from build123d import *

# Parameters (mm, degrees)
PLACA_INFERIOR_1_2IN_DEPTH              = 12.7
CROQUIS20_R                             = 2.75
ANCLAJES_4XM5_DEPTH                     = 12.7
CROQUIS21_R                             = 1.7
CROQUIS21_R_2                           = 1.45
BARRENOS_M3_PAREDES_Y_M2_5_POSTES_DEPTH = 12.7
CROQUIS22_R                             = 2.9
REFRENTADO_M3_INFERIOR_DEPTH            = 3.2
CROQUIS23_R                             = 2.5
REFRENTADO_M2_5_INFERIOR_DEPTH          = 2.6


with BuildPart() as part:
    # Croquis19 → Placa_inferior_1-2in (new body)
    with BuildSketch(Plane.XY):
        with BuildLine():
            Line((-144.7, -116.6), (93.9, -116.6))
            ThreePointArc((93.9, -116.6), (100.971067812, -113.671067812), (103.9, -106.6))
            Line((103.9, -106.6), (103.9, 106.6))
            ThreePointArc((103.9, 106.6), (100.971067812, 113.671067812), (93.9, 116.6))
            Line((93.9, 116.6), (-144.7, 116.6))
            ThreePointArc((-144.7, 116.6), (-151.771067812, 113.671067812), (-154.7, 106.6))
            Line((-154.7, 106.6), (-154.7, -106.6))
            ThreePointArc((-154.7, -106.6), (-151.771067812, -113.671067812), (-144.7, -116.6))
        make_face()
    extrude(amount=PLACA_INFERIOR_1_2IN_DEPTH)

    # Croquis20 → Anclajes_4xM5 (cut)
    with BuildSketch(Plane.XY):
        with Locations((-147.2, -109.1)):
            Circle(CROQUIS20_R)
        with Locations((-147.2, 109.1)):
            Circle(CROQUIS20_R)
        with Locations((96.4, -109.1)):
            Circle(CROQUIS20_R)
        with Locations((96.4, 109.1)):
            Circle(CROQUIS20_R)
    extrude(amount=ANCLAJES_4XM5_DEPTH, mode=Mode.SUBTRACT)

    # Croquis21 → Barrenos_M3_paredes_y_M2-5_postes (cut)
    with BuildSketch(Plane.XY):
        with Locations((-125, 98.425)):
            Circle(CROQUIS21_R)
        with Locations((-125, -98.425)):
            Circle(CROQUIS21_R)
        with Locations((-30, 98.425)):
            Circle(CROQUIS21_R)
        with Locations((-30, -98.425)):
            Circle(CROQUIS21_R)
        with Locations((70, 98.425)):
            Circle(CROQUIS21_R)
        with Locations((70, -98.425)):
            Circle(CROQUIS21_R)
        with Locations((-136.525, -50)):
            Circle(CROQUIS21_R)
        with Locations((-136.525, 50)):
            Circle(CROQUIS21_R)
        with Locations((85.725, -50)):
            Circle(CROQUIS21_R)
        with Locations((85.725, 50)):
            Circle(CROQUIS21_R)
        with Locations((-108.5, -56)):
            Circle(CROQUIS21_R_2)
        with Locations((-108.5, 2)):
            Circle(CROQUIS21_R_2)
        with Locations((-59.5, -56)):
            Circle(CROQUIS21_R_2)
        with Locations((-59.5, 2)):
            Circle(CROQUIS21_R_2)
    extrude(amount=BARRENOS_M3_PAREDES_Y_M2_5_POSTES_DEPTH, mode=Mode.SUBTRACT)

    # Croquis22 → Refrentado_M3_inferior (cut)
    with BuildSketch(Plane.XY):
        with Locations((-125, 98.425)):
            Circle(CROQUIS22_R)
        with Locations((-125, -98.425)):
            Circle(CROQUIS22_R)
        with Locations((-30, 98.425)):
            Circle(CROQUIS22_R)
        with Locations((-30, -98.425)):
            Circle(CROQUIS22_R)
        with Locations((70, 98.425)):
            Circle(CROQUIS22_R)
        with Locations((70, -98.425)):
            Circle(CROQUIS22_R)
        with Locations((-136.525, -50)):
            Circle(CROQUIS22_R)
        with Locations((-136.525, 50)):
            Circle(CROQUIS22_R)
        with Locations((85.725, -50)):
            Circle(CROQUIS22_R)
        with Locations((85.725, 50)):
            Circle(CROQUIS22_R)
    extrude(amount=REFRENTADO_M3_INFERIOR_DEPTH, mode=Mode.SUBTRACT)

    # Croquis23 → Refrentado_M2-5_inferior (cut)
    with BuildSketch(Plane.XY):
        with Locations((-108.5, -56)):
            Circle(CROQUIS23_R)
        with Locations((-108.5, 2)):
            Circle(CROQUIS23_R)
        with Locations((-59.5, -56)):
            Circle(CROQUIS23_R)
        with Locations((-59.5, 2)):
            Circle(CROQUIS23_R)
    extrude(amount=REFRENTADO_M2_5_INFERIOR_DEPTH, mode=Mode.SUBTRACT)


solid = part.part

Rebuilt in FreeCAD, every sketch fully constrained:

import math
import FreeCAD as App
import Part
import Sketcher
from FreeCAD import Vector
Q = App.Units.Quantity

doc = App.newDocument("Part")
body = doc.addObject("PartDesign::Body", "Body")

sketch1 = body.newObject("Sketcher::SketchObject", "Sketch")
sketch1.AttachmentSupport = (doc.getObject("XY_Plane"), [""])
sketch1.MapMode = "FlatFace"
sketch1.addGeometry([
    Part.LineSegment(Vector(-145, -117, 0), Vector(94, -117, 0)),
    Part.ArcOfCircle(Part.Circle(Vector(94, -107, 0), Vector(0, 0, 1), 10), math.radians(-90), math.radians(0)),
    Part.LineSegment(Vector(104, -107, 0), Vector(104, 107, 0)),
    Part.ArcOfCircle(Part.Circle(Vector(94, 107, 0), Vector(0, 0, 1), 10), math.radians(0), math.radians(90)),
    Part.LineSegment(Vector(94, 117, 0), Vector(-145, 117, 0)),
    Part.ArcOfCircle(Part.Circle(Vector(-145, 107, 0), Vector(0, 0, 1), 10), math.radians(90), math.radians(180)),
    Part.LineSegment(Vector(-155, 107, 0), Vector(-155, -107, 0)),
    Part.ArcOfCircle(Part.Circle(Vector(-145, -107, 0), Vector(0, 0, 1), 10), math.radians(180), math.radians(270)),
], False)
sketch1.addConstraint([
    Sketcher.Constraint("Tangent", 0, 2, 1, 1),
    Sketcher.Constraint("Tangent", 1, 2, 2, 1),
    Sketcher.Constraint("Tangent", 2, 2, 3, 1),
    Sketcher.Constraint("Tangent", 3, 2, 4, 1),
    Sketcher.Constraint("Tangent", 4, 2, 5, 1),
    Sketcher.Constraint("Tangent", 5, 2, 6, 1),
    Sketcher.Constraint("Tangent", 6, 2, 7, 1),
    Sketcher.Constraint("Tangent", 7, 2, 0, 1),
    Sketcher.Constraint("Horizontal", 0),
    Sketcher.Constraint("Vertical", 2),
    Sketcher.Constraint("Horizontal", 4),
    Sketcher.Constraint("Vertical", 6),
    Sketcher.Constraint("Equal", 1, 3),
    Sketcher.Constraint("Equal", 3, 5),
    Sketcher.Constraint("Equal", 5, 7),
    Sketcher.Constraint("Radius", 1, Q("10 mm")),
    Sketcher.Constraint("DistanceX", 0, 1, 0, 2, Q("238.6 mm")),
    Sketcher.Constraint("DistanceY", 2, 1, 2, 2, Q("213.2 mm")),
    Sketcher.Constraint("DistanceX", -1, 1, 1, 3, Q("93.9 mm")),
    Sketcher.Constraint("DistanceY", 1, 3, -1, 1, Q("106.6 mm")),
])
pad1 = body.newObject("PartDesign::Pad", "Pad")
pad1.Profile = sketch1
pad1.Length = 12.7

sketch2 = body.newObject("Sketcher::SketchObject", "Sketch001")
sketch2.AttachmentSupport = (doc.getObject("XY_Plane"), [""])
sketch2.MapMode = "FlatFace"
sketch2.addGeometry([
    Part.Circle(Vector(-147.2, -109.1, 0), Vector(0, 0, 1), 2.8),
    Part.Circle(Vector(-147.2, 109.1, 0), Vector(0, 0, 1), 2.8),
    Part.Circle(Vector(96.4, -109.1, 0), Vector(0, 0, 1), 2.8),
    Part.Circle(Vector(96.4, 109.1, 0), Vector(0, 0, 1), 2.8),
], False)
sketch2.addConstraint([
    Sketcher.Constraint("Equal", 0, 1),
    Sketcher.Constraint("Equal", 1, 2),
    Sketcher.Constraint("Equal", 2, 3),
    Sketcher.Constraint("Symmetric", 0, 3, 1, 3, -1),
    Sketcher.Constraint("Symmetric", 2, 3, 3, 3, -1),
    Sketcher.Constraint("Horizontal", 0, 3, 2, 3),
    Sketcher.Constraint("Diameter", 0, Q("5.5 mm")),
    Sketcher.Constraint("DistanceX", 0, 3, -1, 1, Q("147.2 mm")),
    Sketcher.Constraint("DistanceY", 0, 3, -1, 1, Q("109.1 mm")),
    Sketcher.Constraint("DistanceX", -1, 1, 2, 3, Q("96.4 mm")),
])
pocket1 = body.newObject("PartDesign::Pocket", "Pocket")
pocket1.Profile = sketch2
pocket1.Length = 12.7
pocket1.Reversed = True

sketch3 = body.newObject("Sketcher::SketchObject", "Sketch002")
sketch3.AttachmentSupport = (doc.getObject("XY_Plane"), [""])
sketch3.MapMode = "FlatFace"
sketch3.addGeometry([
    Part.Circle(Vector(-125, 98.4, 0), Vector(0, 0, 1), 1.7),
    Part.Circle(Vector(-125, -98.4, 0), Vector(0, 0, 1), 1.7),
    Part.Circle(Vector(-30, 98.4, 0), Vector(0, 0, 1), 1.7),
    Part.Circle(Vector(-30, -98.4, 0), Vector(0, 0, 1), 1.7),
    Part.Circle(Vector(70, 98.4, 0), Vector(0, 0, 1), 1.7),
    Part.Circle(Vector(70, -98.4, 0), Vector(0, 0, 1), 1.7),
    Part.Circle(Vector(-136.5, -50, 0), Vector(0, 0, 1), 1.7),
    Part.Circle(Vector(-136.5, 50, 0), Vector(0, 0, 1), 1.7),
    Part.Circle(Vector(85.7, -50, 0), Vector(0, 0, 1), 1.7),
    Part.Circle(Vector(85.7, 50, 0), Vector(0, 0, 1), 1.7),
    Part.Circle(Vector(-108.5, -56, 0), Vector(0, 0, 1), 1.4),
    Part.Circle(Vector(-108.5, 2, 0), Vector(0, 0, 1), 1.4),
    Part.Circle(Vector(-59.5, -56, 0), Vector(0, 0, 1), 1.4),
    Part.Circle(Vector(-59.5, 2, 0), Vector(0, 0, 1), 1.4),
], False)
sketch3.addConstraint([
    Sketcher.Constraint("Equal", 0, 1),
    Sketcher.Constraint("Equal", 1, 2),
    Sketcher.Constraint("Equal", 2, 3),
    Sketcher.Constraint("Equal", 3, 4),
    Sketcher.Constraint("Equal", 4, 5),
    Sketcher.Constraint("Equal", 5, 6),
    Sketcher.Constraint("Equal", 6, 7),
    Sketcher.Constraint("Equal", 7, 8),
    Sketcher.Constraint("Equal", 8, 9),
    Sketcher.Constraint("Equal", 10, 11),
    Sketcher.Constraint("Equal", 11, 12),
    Sketcher.Constraint("Equal", 12, 13),
    Sketcher.Constraint("Symmetric", 0, 3, 1, 3, -1),
    Sketcher.Constraint("Symmetric", 2, 3, 3, 3, -1),
    Sketcher.Constraint("Symmetric", 4, 3, 5, 3, -1),
    Sketcher.Constraint("Symmetric", 6, 3, 7, 3, -1),
    Sketcher.Constraint("Symmetric", 8, 3, 9, 3, -1),
    Sketcher.Constraint("Horizontal", 0, 3, 2, 3),
    Sketcher.Constraint("Horizontal", 2, 3, 4, 3),
    Sketcher.Constraint("Horizontal", 6, 3, 8, 3),
    Sketcher.Constraint("Horizontal", 10, 3, 12, 3),
    Sketcher.Constraint("Horizontal", 11, 3, 13, 3),
    Sketcher.Constraint("Vertical", 10, 3, 11, 3),
    Sketcher.Constraint("Vertical", 12, 3, 13, 3),
    Sketcher.Constraint("Diameter", 0, Q("3.4 mm")),
    Sketcher.Constraint("Diameter", 10, Q("2.9 mm")),
    Sketcher.Constraint("DistanceX", 0, 3, -1, 1, Q("125 mm")),
    Sketcher.Constraint("DistanceX", 2, 3, -1, 1, Q("30 mm")),
    Sketcher.Constraint("DistanceX", -1, 1, 4, 3, Q("70 mm")),
    Sketcher.Constraint("DistanceY", 6, 3, -1, 1, Q("50 mm")),
    Sketcher.Constraint("DistanceY", 10, 3, -1, 1, Q("56 mm")),
    Sketcher.Constraint("DistanceY", -1, 1, 11, 3, Q("2 mm")),
    Sketcher.Constraint("DistanceX", 10, 3, 12, 3, Q("49 mm")),
    Sketcher.Constraint("DistanceX", 10, 3, -1, 1, Q("108.5 mm")),
    Sketcher.Constraint("DistanceY", 1, 3, 0, 3, Q("196.85 mm")),
    Sketcher.Constraint("DistanceX", 6, 3, -1, 1, Q("136.525 mm")),
    Sketcher.Constraint("DistanceX", -1, 1, 8, 3, Q("85.725 mm")),
])
pocket2 = body.newObject("PartDesign::Pocket", "Pocket001")
pocket2.Profile = sketch3
pocket2.Length = 12.7
pocket2.Reversed = True

sketch4 = body.newObject("Sketcher::SketchObject", "Sketch003")
sketch4.AttachmentSupport = (doc.getObject("XY_Plane"), [""])
sketch4.MapMode = "FlatFace"
sketch4.addGeometry([
    Part.Circle(Vector(-125, 98.4, 0), Vector(0, 0, 1), 2.9),
    Part.Circle(Vector(-125, -98.4, 0), Vector(0, 0, 1), 2.9),
    Part.Circle(Vector(-30, 98.4, 0), Vector(0, 0, 1), 2.9),
    Part.Circle(Vector(-30, -98.4, 0), Vector(0, 0, 1), 2.9),
    Part.Circle(Vector(70, 98.4, 0), Vector(0, 0, 1), 2.9),
    Part.Circle(Vector(70, -98.4, 0), Vector(0, 0, 1), 2.9),
    Part.Circle(Vector(-136.5, -50, 0), Vector(0, 0, 1), 2.9),
    Part.Circle(Vector(-136.5, 50, 0), Vector(0, 0, 1), 2.9),
    Part.Circle(Vector(85.7, -50, 0), Vector(0, 0, 1), 2.9),
    Part.Circle(Vector(85.7, 50, 0), Vector(0, 0, 1), 2.9),
], False)
sketch4.addConstraint([
    Sketcher.Constraint("Equal", 0, 1),
    Sketcher.Constraint("Equal", 1, 2),
    Sketcher.Constraint("Equal", 2, 3),
    Sketcher.Constraint("Equal", 3, 4),
    Sketcher.Constraint("Equal", 4, 5),
    Sketcher.Constraint("Equal", 5, 6),
    Sketcher.Constraint("Equal", 6, 7),
    Sketcher.Constraint("Equal", 7, 8),
    Sketcher.Constraint("Equal", 8, 9),
    Sketcher.Constraint("Symmetric", 0, 3, 1, 3, -1),
    Sketcher.Constraint("Symmetric", 2, 3, 3, 3, -1),
    Sketcher.Constraint("Symmetric", 4, 3, 5, 3, -1),
    Sketcher.Constraint("Symmetric", 6, 3, 7, 3, -1),
    Sketcher.Constraint("Symmetric", 8, 3, 9, 3, -1),
    Sketcher.Constraint("Horizontal", 0, 3, 2, 3),
    Sketcher.Constraint("Horizontal", 2, 3, 4, 3),
    Sketcher.Constraint("Horizontal", 6, 3, 8, 3),
    Sketcher.Constraint("Diameter", 0, Q("5.8 mm")),
    Sketcher.Constraint("DistanceX", 0, 3, -1, 1, Q("125 mm")),
    Sketcher.Constraint("DistanceX", 2, 3, -1, 1, Q("30 mm")),
    Sketcher.Constraint("DistanceX", -1, 1, 4, 3, Q("70 mm")),
    Sketcher.Constraint("DistanceY", 6, 3, -1, 1, Q("50 mm")),
    Sketcher.Constraint("DistanceY", 1, 3, 0, 3, Q("196.85 mm")),
    Sketcher.Constraint("DistanceX", 6, 3, -1, 1, Q("136.525 mm")),
    Sketcher.Constraint("DistanceX", -1, 1, 8, 3, Q("85.725 mm")),
])
pocket3 = body.newObject("PartDesign::Pocket", "Pocket002")
pocket3.Profile = sketch4
pocket3.Length = 3.2
pocket3.Reversed = True

sketch5 = body.newObject("Sketcher::SketchObject", "Sketch004")
sketch5.AttachmentSupport = (doc.getObject("XY_Plane"), [""])
sketch5.MapMode = "FlatFace"
sketch5.addGeometry([
    Part.Circle(Vector(-108.5, -56, 0), Vector(0, 0, 1), 2.5),
    Part.Circle(Vector(-108.5, 2, 0), Vector(0, 0, 1), 2.5),
    Part.Circle(Vector(-59.5, -56, 0), Vector(0, 0, 1), 2.5),
    Part.Circle(Vector(-59.5, 2, 0), Vector(0, 0, 1), 2.5),
], False)
sketch5.addConstraint([
    Sketcher.Constraint("Equal", 0, 1),
    Sketcher.Constraint("Equal", 1, 2),
    Sketcher.Constraint("Equal", 2, 3),
    Sketcher.Constraint("Horizontal", 0, 3, 2, 3),
    Sketcher.Constraint("Horizontal", 1, 3, 3, 3),
    Sketcher.Constraint("Vertical", 0, 3, 1, 3),
    Sketcher.Constraint("Vertical", 2, 3, 3, 3),
    Sketcher.Constraint("Diameter", 0, Q("5 mm")),
    Sketcher.Constraint("DistanceY", 0, 3, -1, 1, Q("56 mm")),
    Sketcher.Constraint("DistanceY", -1, 1, 1, 3, Q("2 mm")),
    Sketcher.Constraint("DistanceX", 0, 3, 2, 3, Q("49 mm")),
    Sketcher.Constraint("DistanceX", 0, 3, -1, 1, Q("108.5 mm")),
])
pocket4 = body.newObject("PartDesign::Pocket", "Pocket003")
pocket4.Profile = sketch5
pocket4.Length = 2.6
pocket4.Reversed = True

doc.recompute()
